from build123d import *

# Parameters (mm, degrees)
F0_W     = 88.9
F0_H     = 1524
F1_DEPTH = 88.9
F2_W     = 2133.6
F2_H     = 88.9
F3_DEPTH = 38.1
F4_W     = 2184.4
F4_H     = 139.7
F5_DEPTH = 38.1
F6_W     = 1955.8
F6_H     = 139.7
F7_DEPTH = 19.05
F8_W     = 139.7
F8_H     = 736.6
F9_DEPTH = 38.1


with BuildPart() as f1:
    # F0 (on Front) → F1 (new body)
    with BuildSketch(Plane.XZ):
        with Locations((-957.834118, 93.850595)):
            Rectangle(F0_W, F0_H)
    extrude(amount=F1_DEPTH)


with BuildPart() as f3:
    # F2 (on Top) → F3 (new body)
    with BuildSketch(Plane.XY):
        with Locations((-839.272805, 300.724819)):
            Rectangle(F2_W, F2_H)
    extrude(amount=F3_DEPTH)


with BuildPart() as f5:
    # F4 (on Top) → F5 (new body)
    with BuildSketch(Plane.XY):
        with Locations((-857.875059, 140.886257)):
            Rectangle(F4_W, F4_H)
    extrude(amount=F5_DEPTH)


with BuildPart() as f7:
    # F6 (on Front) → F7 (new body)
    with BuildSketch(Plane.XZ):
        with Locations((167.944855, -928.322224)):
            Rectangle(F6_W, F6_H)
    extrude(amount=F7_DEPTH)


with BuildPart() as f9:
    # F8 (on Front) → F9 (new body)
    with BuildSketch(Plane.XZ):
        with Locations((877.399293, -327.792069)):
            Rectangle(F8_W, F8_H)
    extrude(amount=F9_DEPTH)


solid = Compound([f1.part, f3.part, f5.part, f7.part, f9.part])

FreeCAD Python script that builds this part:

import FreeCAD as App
import Part
import Sketcher

V = App.Vector
Q = App.Units.Quantity

doc = App.newDocument("Part")
body = doc.addObject("PartDesign::Body", "Body")

# Sketch on XZ plane
sketch1 = doc.addObject("Sketcher::SketchObject", "Sketch")
body.addObject(sketch1)
sketch1.AttachmentSupport = (doc.XZ_Plane, [""])
sketch1.MapMode = "FlatFace"
sketch1.addGeometry([
    Part.LineSegment(V(-1002, 856, 0), V(-1002, -668, 0)),
    Part.LineSegment(V(-1002, -668, 0), V(-913, -668, 0)),
    Part.LineSegment(V(-913, -668, 0), V(-913, 856, 0)),
    Part.LineSegment(V(-913, 856, 0), V(-1002, 856, 0)),
], False)
sketch1.addConstraint([
    Sketcher.Constraint("Coincident", 0, 2, 1, 1),
    Sketcher.Constraint("Coincident", 1, 2, 2, 1),
    Sketcher.Constraint("Coincident", 2, 2, 3, 1),
    Sketcher.Constraint("Coincident", 3, 2, 0, 1),
    Sketcher.Constraint("Vertical", 0),
    Sketcher.Constraint("Horizontal", 1),
    Sketcher.Constraint("Vertical", 2),
    Sketcher.Constraint("Horizontal", 3),
    Sketcher.Constraint("DistanceY", 0, 2, 0, 1, Q("60 in")),
    Sketcher.Constraint("DistanceX", 1, 1, 1, 2, Q("3.5 in")),
    Sketcher.Constraint("DistanceX", 0, 2, -1, 1, 1002.284118),
    Sketcher.Constraint("DistanceY", 0, 2, -1, 1, 668.149405),
])
pad1 = doc.addObject("PartDesign::Pad", "Pad")
body.addObject(pad1)
pad1.Profile = sketch1
pad1.Length = Q("3.5 in")
body2 = doc.addObject("PartDesign::Body", "Body001")

# Sketch on XY plane
sketch2 = doc.addObject("Sketcher::SketchObject", "Sketch001")
body2.addObject(sketch2)
sketch2.AttachmentSupport = (doc.getObject("XY_Plane001"), [""])
sketch2.MapMode = "FlatFace"
sketch2.addGeometry([
    Part.LineSegment(V(-1906, 345, 0), V(-1906, 256, 0)),
    Part.LineSegment(V(-1906, 256, 0), V(228, 256, 0)),
    Part.LineSegment(V(228, 256, 0), V(228, 345, 0)),
    Part.LineSegment(V(228, 345, 0), V(-1906, 345, 0)),
], False)
sketch2.addConstraint([
    Sketcher.Constraint("Coincident", 0, 2, 1, 1),
    Sketcher.Constraint("Coincident", 1, 2, 2, 1),
    Sketcher.Constraint("Coincident", 2, 2, 3, 1),
    Sketcher.Constraint("Coincident", 3, 2, 0, 1),
    Sketcher.Constraint("Vertical", 0),
    Sketcher.Constraint("Horizontal", 1),
    Sketcher.Constraint("Vertical", 2),
    Sketcher.Constraint("Horizontal", 3),
    Sketcher.Constraint("DistanceX", 1, 1, 1, 2, Q("84 in")),
    Sketcher.Constraint("DistanceY", 0, 2, 0, 1, Q("3.5 in")),
    Sketcher.Constraint("DistanceY", -1, 1, 0, 2, 256.274819),
    Sketcher.Constraint("DistanceX", 0, 2, -1, 1, 1906.072805),
])
pad2 = doc.addObject("PartDesign::Pad", "Pad001")
body2.addObject(pad2)
pad2.Profile = sketch2
pad2.Length = Q("1.5 in")
body3 = doc.addObject("PartDesign::Body", "Body002")

# Sketch on XY plane
sketch3 = doc.addObject("Sketcher::SketchObject", "Sketch002")
body3.addObject(sketch3)
sketch3.AttachmentSupport = (doc.getObject("XY_Plane002"), [""])
sketch3.MapMode = "FlatFace"
sketch3.addGeometry([
    Part.LineSegment(V(-1950, 211, 0), V(-1950, 71, 0)),
    Part.LineSegment(V(-1950, 71, 0), V(234, 71, 0)),
    Part.LineSegment(V(234, 71, 0), V(234, 211, 0)),
    Part.LineSegment(V(234, 211, 0), V(-1950, 211, 0)),
], False)
sketch3.addConstraint([
    Sketcher.Constraint("Coincident", 0, 2, 1, 1),
    Sketcher.Constraint("Coincident", 1, 2, 2, 1),
    Sketcher.Constraint("Coincident", 2, 2, 3, 1),
    Sketcher.Constraint("Coincident", 3, 2, 0, 1),
    Sketcher.Constraint("Vertical", 0),
    Sketcher.Constraint("Horizontal", 1),
    Sketcher.Constraint("Vertical", 2),
    Sketcher.Constraint("Horizontal", 3),
    Sketcher.Constraint("DistanceX", 1, 1, 1, 2, Q("86 in")),
    Sketcher.Constraint("DistanceY", 0, 2, 0, 1, Q("5.5 in")),
    Sketcher.Constraint("DistanceX", 0, 2, -1, 1, 1950.075059),
    Sketcher.Constraint("DistanceY", -1, 1, 0, 2, 71.036257),
])
pad3 = doc.addObject("PartDesign::Pad", "Pad002")
body3.addObject(pad3)
pad3.Profile = sketch3
pad3.Length = Q("1.5 in")
body4 = doc.addObject("PartDesign::Body", "Body003")

# Sketch on XZ plane
sketch4 = doc.addObject("Sketcher::SketchObject", "Sketch003")
body4.addObject(sketch4)
sketch4.AttachmentSupport = (doc.getObject("XZ_Plane003"), [""])
sketch4.MapMode = "FlatFace"
sketch4.addGeometry([
    Part.LineSegment(V(-810, -858, 0), V(-810, -998, 0)),
    Part.LineSegment(V(-810, -998, 0), V(1146, -998, 0)),
    Part.LineSegment(V(1146, -998, 0), V(1146, -858, 0)),
    Part.LineSegment(V(1146, -858, 0), V(-810, -858, 0)),
], False)
sketch4.addConstraint([
    Sketcher.Constraint("Coincident", 0, 2, 1, 1),
    Sketcher.Constraint("Coincident", 1, 2, 2, 1),
    Sketcher.Constraint("Coincident", 2, 2, 3, 1),
    Sketcher.Constraint("Coincident", 3, 2, 0, 1),
    Sketcher.Constraint("Vertical", 0),
    Sketcher.Constraint("Horizontal", 1),
    Sketcher.Constraint("Vertical", 2),
    Sketcher.Constraint("Horizontal", 3),
    Sketcher.Constraint("DistanceX", 1, 1, 1, 2, Q("77 in")),
    Sketcher.Constraint("DistanceY", 0, 2, 0, 1, Q("5.5 in")),
    Sketcher.Constraint("DistanceX", 0, 2, -1, 1, 809.955145),
    Sketcher.Constraint("DistanceY", 0, 2, -1, 1, 998.172224),
])
pad4 = doc.addObject("PartDesign::Pad", "Pad003")
body4.addObject(pad4)
pad4.Profile = sketch4
pad4.Length = Q("0.75 in")
body5 = doc.addObject("PartDesign::Body", "Body004")

# Sketch on XZ plane
sketch5 = doc.addObject("Sketcher::SketchObject", "Sketch004")
body5.addObject(sketch5)
sketch5.AttachmentSupport = (doc.getObject("XZ_Plane004"), [""])
sketch5.MapMode = "FlatFace"
sketch5.addGeometry([
    Part.LineSegment(V(808, 41, 0), V(808, -696, 0)),
    Part.LineSegment(V(808, -696, 0), V(947, -696, 0)),
    Part.LineSegment(V(947, -696, 0), V(947, 41, 0)),
    Part.LineSegment(V(947, 41, 0), V(808, 41, 0)),
], False)
sketch5.addConstraint([
    Sketcher.Constraint("Coincident", 0, 2, 1, 1),
    Sketcher.Constraint("Coincident", 1, 2, 2, 1),
    Sketcher.Constraint("Coincident", 2, 2, 3, 1),
    Sketcher.Constraint("Coincident", 3, 2, 0, 1),
    Sketcher.Constraint("Vertical", 0),
    Sketcher.Constraint("Horizontal", 1),
    Sketcher.Constraint("Vertical", 2),
    Sketcher.Constraint("Horizontal", 3),
    Sketcher.Constraint("DistanceY", 0, 2, 0, 1, Q("29 in")),
    Sketcher.Constraint("DistanceX", 1, 1, 1, 2, Q("5.5 in")),
    Sketcher.Constraint("DistanceY", 0, 2, -1, 1, 696.092069),
    Sketcher.Constraint("DistanceX", -1, 1, 0, 2, 807.549293),
])
pad5 = doc.addObject("PartDesign::Pad", "Pad004")
body5.addObject(pad5)
pad5.Profile = sketch5
pad5.Length = Q("1.5 in")

doc.recompute()
